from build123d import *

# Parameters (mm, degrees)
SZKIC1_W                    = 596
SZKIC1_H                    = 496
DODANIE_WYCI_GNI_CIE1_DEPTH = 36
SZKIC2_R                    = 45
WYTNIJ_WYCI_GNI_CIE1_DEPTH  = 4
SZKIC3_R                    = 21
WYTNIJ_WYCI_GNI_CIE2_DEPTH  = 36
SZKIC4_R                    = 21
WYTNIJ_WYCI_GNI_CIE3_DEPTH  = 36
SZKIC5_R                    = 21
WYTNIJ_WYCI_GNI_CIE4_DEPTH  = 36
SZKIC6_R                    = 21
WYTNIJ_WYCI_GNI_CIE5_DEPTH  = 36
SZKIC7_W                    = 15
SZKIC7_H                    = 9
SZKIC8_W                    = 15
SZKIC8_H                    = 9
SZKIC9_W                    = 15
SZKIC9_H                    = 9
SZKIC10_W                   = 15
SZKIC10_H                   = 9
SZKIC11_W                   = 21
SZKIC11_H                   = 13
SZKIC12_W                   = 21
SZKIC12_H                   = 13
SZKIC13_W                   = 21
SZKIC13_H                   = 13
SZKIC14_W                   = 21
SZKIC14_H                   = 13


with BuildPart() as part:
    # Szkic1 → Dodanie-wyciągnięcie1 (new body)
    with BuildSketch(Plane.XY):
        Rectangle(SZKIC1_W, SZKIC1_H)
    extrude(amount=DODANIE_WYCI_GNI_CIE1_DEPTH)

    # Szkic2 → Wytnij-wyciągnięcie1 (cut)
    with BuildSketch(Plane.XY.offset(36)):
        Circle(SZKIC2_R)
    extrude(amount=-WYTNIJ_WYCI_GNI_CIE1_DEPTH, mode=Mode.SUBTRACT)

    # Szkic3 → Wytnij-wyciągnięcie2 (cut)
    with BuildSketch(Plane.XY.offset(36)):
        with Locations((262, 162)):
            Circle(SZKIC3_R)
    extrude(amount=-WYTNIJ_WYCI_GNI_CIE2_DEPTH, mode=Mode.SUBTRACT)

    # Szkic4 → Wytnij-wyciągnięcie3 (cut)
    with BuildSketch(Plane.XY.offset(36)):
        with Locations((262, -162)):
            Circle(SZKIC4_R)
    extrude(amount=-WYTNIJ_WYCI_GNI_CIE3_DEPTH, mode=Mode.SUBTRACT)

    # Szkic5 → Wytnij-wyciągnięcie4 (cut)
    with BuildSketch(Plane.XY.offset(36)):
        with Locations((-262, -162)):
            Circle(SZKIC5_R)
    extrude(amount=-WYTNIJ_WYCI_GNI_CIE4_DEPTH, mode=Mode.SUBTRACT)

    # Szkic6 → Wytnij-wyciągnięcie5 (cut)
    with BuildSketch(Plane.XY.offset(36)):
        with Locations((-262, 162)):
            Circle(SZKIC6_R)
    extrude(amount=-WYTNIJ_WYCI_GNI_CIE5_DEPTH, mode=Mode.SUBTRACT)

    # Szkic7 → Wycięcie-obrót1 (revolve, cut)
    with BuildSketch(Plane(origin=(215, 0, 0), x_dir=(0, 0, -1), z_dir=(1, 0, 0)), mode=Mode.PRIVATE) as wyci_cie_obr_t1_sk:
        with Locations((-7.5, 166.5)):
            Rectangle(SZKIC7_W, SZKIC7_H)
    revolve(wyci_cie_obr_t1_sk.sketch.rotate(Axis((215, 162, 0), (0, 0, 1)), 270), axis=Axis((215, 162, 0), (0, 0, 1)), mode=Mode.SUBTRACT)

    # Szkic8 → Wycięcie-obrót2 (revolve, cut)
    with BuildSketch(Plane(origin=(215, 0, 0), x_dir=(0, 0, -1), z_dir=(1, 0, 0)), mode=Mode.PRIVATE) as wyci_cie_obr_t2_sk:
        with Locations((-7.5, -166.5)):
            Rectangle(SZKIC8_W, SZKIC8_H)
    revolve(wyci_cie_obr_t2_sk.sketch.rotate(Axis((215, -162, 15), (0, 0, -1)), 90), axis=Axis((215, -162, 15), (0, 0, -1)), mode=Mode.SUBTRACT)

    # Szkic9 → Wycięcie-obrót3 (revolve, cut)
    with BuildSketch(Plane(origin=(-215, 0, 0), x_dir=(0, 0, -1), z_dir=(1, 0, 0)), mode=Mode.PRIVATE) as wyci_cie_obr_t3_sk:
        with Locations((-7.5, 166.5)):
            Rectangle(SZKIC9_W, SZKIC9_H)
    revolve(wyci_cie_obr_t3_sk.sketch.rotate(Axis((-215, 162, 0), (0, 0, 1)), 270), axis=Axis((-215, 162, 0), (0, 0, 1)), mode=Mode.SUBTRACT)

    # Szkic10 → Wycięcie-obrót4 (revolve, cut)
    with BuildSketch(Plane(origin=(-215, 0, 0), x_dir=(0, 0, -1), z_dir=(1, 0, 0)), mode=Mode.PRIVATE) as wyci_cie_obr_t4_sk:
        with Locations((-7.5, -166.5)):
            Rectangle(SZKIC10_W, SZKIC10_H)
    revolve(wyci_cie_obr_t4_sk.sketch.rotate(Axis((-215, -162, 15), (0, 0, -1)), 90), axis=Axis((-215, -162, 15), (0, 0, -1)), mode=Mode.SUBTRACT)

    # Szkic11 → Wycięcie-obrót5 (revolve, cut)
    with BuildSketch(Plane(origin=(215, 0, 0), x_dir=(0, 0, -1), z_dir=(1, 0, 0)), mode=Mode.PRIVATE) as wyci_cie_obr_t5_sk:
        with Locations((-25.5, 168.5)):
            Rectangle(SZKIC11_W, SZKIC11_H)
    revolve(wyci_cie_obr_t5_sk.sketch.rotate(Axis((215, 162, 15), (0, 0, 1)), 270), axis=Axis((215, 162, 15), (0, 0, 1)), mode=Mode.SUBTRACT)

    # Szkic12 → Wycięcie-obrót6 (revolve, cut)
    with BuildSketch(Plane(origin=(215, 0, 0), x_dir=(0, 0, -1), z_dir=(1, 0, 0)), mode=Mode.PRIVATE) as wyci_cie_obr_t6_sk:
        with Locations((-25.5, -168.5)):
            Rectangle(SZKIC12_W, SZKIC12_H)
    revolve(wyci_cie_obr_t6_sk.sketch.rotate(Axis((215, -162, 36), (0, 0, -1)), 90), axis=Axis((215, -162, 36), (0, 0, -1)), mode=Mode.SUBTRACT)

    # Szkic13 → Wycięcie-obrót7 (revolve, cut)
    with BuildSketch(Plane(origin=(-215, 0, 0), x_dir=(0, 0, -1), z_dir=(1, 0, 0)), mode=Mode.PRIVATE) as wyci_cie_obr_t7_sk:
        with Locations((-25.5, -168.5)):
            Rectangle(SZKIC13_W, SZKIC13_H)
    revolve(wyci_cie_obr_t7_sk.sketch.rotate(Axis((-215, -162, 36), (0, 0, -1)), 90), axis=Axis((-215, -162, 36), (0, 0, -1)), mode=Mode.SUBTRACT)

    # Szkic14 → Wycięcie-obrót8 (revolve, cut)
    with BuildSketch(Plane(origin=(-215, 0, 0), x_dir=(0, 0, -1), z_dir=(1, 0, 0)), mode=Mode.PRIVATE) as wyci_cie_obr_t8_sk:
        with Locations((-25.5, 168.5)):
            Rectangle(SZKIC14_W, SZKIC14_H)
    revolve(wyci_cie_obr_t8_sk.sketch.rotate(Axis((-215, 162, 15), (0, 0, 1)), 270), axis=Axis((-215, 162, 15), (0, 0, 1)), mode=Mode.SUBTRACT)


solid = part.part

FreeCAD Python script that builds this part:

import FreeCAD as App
import Part
import Sketcher

V = App.Vector
Q = App.Units.Quantity

doc = App.newDocument("Part")
body = doc.addObject("PartDesign::Body", "Body")

# Sketch on XY plane
sketch1 = body.newObject("Sketcher::SketchObject", "Sketch")
sketch1.AttachmentSupport = (doc.getObject("XY_Plane"), [""])
sketch1.MapMode = "FlatFace"
sketch1.addGeometry([
    Part.LineSegment(V(-298, 248, 0), V(-298, -248, 0)),
    Part.LineSegment(V(-298, -248, 0), V(298, -248, 0)),
    Part.LineSegment(V(298, -248, 0), V(298, 248, 0)),
    Part.LineSegment(V(298, 248, 0), V(-298, 248, 0)),
], False)
sketch1.addConstraint([
    Sketcher.Constraint("Coincident", 0, 2, 1, 1),
    Sketcher.Constraint("Coincident", 1, 2, 2, 1),
    Sketcher.Constraint("Coincident", 2, 2, 3, 1),
    Sketcher.Constraint("Coincident", 3, 2, 0, 1),
    Sketcher.Constraint("Vertical", 0),
    Sketcher.Constraint("Horizontal", 1),
    Sketcher.Constraint("Vertical", 2),
    Sketcher.Constraint("Horizontal", 3),
    Sketcher.Constraint("Symmetric", 0, 2, 2, 2, -1, 1),
    Sketcher.Constraint("DistanceX", 1, 1, 1, 2, Q("596 mm")),
    Sketcher.Constraint("DistanceY", 0, 2, 0, 1, Q("496 mm")),
])
pad1 = body.newObject("PartDesign::Pad", "Pad")
pad1.Profile = sketch1
pad1.Length = 36

# Sketch on XY plane
sketch2 = body.newObject("Sketcher::SketchObject", "Sketch001")
sketch2.AttachmentSupport = (doc.getObject("XY_Plane"), [""])
sketch2.MapMode = "FlatFace"
sketch2.AttachmentOffset = App.Placement(V(0, 0, 36), App.Rotation())
sketch2.addGeometry(Part.Circle(V(0, 0, 0), V(0, 0, 1), 45), False)
sketch2.addConstraint([
    Sketcher.Constraint("Coincident", 0, 3, -1, 1),
    Sketcher.Constraint("Diameter", 0, Q("90 mm")),
])
pocket1 = body.newObject("PartDesign::Pocket", "Pocket")
pocket1.Profile = sketch2
pocket1.Length = 4

# Sketch on XY plane
sketch3 = body.newObject("Sketcher::SketchObject", "Sketch002")
sketch3.AttachmentSupport = (doc.getObject("XY_Plane"), [""])
sketch3.MapMode = "FlatFace"
sketch3.AttachmentOffset = App.Placement(V(0, 0, 36), App.Rotation())
sketch3.addGeometry(Part.Circle(V(262, 162, 0), V(0, 0, 1), 21), False)
sketch3.addConstraint([
    Sketcher.Constraint("Diameter", 0, Q("42 mm")),
    Sketcher.Constraint("DistanceX", -1, 1, 0, 3, Q("262 mm")),
    Sketcher.Constraint("DistanceY", -1, 1, 0, 3, Q("162 mm")),
])
pocket2 = body.newObject("PartDesign::Pocket", "Pocket001")
pocket2.Profile = sketch3
pocket2.Length = 36

# Sketch on XY plane
sketch4 = body.newObject("Sketcher::SketchObject", "Sketch003")
sketch4.AttachmentSupport = (doc.getObject("XY_Plane"), [""])
sketch4.MapMode = "FlatFace"
sketch4.AttachmentOffset = App.Placement(V(0, 0, 36), App.Rotation())
sketch4.addGeometry(Part.Circle(V(262, -162, 0), V(0, 0, 1), 21), False)
sketch4.addConstraint([
    Sketcher.Constraint("Diameter", 0, Q("42 mm")),
    Sketcher.Constraint("DistanceX", -1, 1, 0, 3, Q("262 mm")),
    Sketcher.Constraint("DistanceY", 0, 3, -1, 1, Q("162 mm")),
])
pocket3 = body.newObject("PartDesign::Pocket", "Pocket002")
pocket3.Profile = sketch4
pocket3.Length = 36

# Sketch on XY plane
sketch5 = body.newObject("Sketcher::SketchObject", "Sketch004")
sketch5.AttachmentSupport = (doc.getObject("XY_Plane"), [""])
sketch5.MapMode = "FlatFace"
sketch5.AttachmentOffset = App.Placement(V(0, 0, 36), App.Rotation())
sketch5.addGeometry(Part.Circle(V(-262, -162, 0), V(0, 0, 1), 21), False)
sketch5.addConstraint([
    Sketcher.Constraint("Diameter", 0, Q("42 mm")),
    Sketcher.Constraint("DistanceX", 0, 3, -1, 1, Q("262 mm")),
    Sketcher.Constraint("DistanceY", 0, 3, -1, 1, Q("162 mm")),
])
pocket4 = body.newObject("PartDesign::Pocket", "Pocket003")
pocket4.Profile = sketch5
pocket4.Length = 36

# Sketch on XY plane
sketch6 = body.newObject("Sketcher::SketchObject", "Sketch005")
sketch6.AttachmentSupport = (doc.getObject("XY_Plane"), [""])
sketch6.MapMode = "FlatFace"
sketch6.AttachmentOffset = App.Placement(V(0, 0, 36), App.Rotation())
sketch6.addGeometry(Part.Circle(V(-262, 162, 0), V(0, 0, 1), 21), False)
sketch6.addConstraint([
    Sketcher.Constraint("Diameter", 0, Q("42 mm")),
    Sketcher.Constraint("DistanceX", 0, 3, -1, 1, Q("262 mm")),
    Sketcher.Constraint("DistanceY", -1, 1, 0, 3, Q("162 mm")),
])
pocket5 = body.newObject("PartDesign::Pocket", "Pocket004")
pocket5.Profile = sketch6
pocket5.Length = 36

# Sketch on YZ plane
sketch7 = body.newObject("Sketcher::SketchObject", "Sketch006")
sketch7.AttachmentSupport = (doc.getObject("YZ_Plane"), [""])
sketch7.MapMode = "FlatFace"
sketch7.AttachmentOffset = App.Placement(V(0, 0, 215), App.Rotation())
sketch7.addGeometry([
    Part.LineSegment(V(171, 15, 0), V(162, 15, 0)),
    Part.LineSegment(V(162, 15, 0), V(162, 0, 0)),
    Part.LineSegment(V(162, 0, 0), V(171, 0, 0)),
    Part.LineSegment(V(171, 0, 0), V(171, 15, 0)),
], False)
sketch7.addGeometry(Part.LineSegment(V(162, 0, 0), V(162, 15, 0)), True)  # axis
sketch7.addConstraint([
    Sketcher.Constraint("Coincident", 0, 2, 1, 1),
    Sketcher.Constraint("Coincident", 1, 2, 2, 1),
    Sketcher.Constraint("Coincident", 2, 2, 3, 1),
    Sketcher.Constraint("Coincident", 3, 2, 0, 1),
    Sketcher.Constraint("Horizontal", 0),
    Sketcher.Constraint("Vertical", 1),
    Sketcher.Constraint("Horizontal", 2),
    Sketcher.Constraint("Vertical", 3),
    Sketcher.Constraint("Vertical", 4),
    Sketcher.Constraint("Coincident", 4, 1, 1, 2),
    Sketcher.Constraint("PointOnObject", 1, 2, -1),
    Sketcher.Constraint("Horizontal", 3, 2, 4, 2),
    Sketcher.Constraint("DistanceX", 0, 2, 0, 1, Q("9 mm")),
    Sketcher.Constraint("DistanceY", 1, 2, 1, 1, Q("15 mm")),
    Sketcher.Constraint("DistanceX", -1, 1, 0, 2, Q("162 mm")),
])
groove = body.newObject("PartDesign::Groove", "Groove")
groove.Profile = sketch7
groove.ReferenceAxis = (sketch7, ["Axis0"])
groove.Angle = 360

# Sketch on YZ plane
sketch8 = body.newObject("Sketcher::SketchObject", "Sketch007")
sketch8.AttachmentSupport = (doc.getObject("YZ_Plane"), [""])
sketch8.MapMode = "FlatFace"
sketch8.AttachmentOffset = App.Placement(V(0, 0, 215), App.Rotation())
sketch8.addGeometry([
    Part.LineSegment(V(-162, 15, 0), V(-171, 15, 0)),
    Part.LineSegment(V(-171, 15, 0), V(-171, 0, 0)),
    Part.LineSegment(V(-171, 0, 0), V(-162, 0, 0)),
    Part.LineSegment(V(-162, 0, 0), V(-162, 15, 0)),
], False)
sketch8.addGeometry(Part.LineSegment(V(-162, 15, 0), V(-162, 0, 0)), True)  # axis
sketch8.addConstraint([
    Sketcher.Constraint("Coincident", 0, 2, 1, 1),
    Sketcher.Constraint("Coincident", 1, 2, 2, 1),
    Sketcher.Constraint("Coincident", 2, 2, 3, 1),
    Sketcher.Constraint("Coincident", 3, 2, 0, 1),
    Sketcher.Constraint("Horizontal", 0),
    Sketcher.Constraint("Vertical", 1),
    Sketcher.Constraint("Horizontal", 2),
    Sketcher.Constraint("Vertical", 3),
    Sketcher.Constraint("Vertical", 4),
    Sketcher.Constraint("Coincident", 4, 1, 3, 2),
    Sketcher.Constraint("PointOnObject", 1, 2, -1),
    Sketcher.Constraint("PointOnObject", 4, 2, -1),
    Sketcher.Constraint("DistanceX", 0, 2, 0, 1, Q("9 mm")),
    Sketcher.Constraint("DistanceY", 1, 2, 1, 1, Q("15 mm")),
    Sketcher.Constraint("DistanceX", 0, 2, -1, 1, Q("171 mm")),
])
groove2 = body.newObject("PartDesign::Groove", "Groove001")
groove2.Profile = sketch8
groove2.ReferenceAxis = (sketch8, ["Axis0"])
groove2.Angle = 360

# Sketch on YZ plane
sketch9 = body.newObject("Sketcher::SketchObject", "Sketch008")
sketch9.AttachmentSupport = (doc.getObject("YZ_Plane"), [""])
sketch9.MapMode = "FlatFace"
sketch9.AttachmentOffset = App.Placement(V(0, 0, -215), App.Rotation())
sketch9.addGeometry([
    Part.LineSegment(V(171, 15, 0), V(162, 15, 0)),
    Part.LineSegment(V(162, 15, 0), V(162, 0, 0)),
    Part.LineSegment(V(162, 0, 0), V(171, 0, 0)),
    Part.LineSegment(V(171, 0, 0), V(171, 15, 0)),
], False)
sketch9.addGeometry(Part.LineSegment(V(162, 0, 0), V(162, 15, 0)), True)  # axis
sketch9.addConstraint([
    Sketcher.Constraint("Coincident", 0, 2, 1, 1),
    Sketcher.Constraint("Coincident", 1, 2, 2, 1),
    Sketcher.Constraint("Coincident", 2, 2, 3, 1),
    Sketcher.Constraint("Coincident", 3, 2, 0, 1),
    Sketcher.Constraint("Horizontal", 0),
    Sketcher.Constraint("Vertical", 1),
    Sketcher.Constraint("Horizontal", 2),
    Sketcher.Constraint("Vertical", 3),
    Sketcher.Constraint("Vertical", 4),
    Sketcher.Constraint("Coincident", 4, 1, 1, 2),
    Sketcher.Constraint("PointOnObject", 1, 2, -1),
    Sketcher.Constraint("Horizontal", 3, 2, 4, 2),
    Sketcher.Constraint("DistanceX", 0, 2, 0, 1, Q("9 mm")),
    Sketcher.Constraint("DistanceY", 1, 2, 1, 1, Q("15 mm")),
    Sketcher.Constraint("DistanceX", -1, 1, 0, 2, Q("162 mm")),
])
groove3 = body.newObject("PartDesign::Groove", "Groove002")
groove3.Profile = sketch9
groove3.ReferenceAxis = (sketch9, ["Axis0"])
groove3.Angle = 360

# Sketch on YZ plane
sketch10 = body.newObject("Sketcher::SketchObject", "Sketch009")
sketch10.AttachmentSupport = (doc.getObject("YZ_Plane"), [""])
sketch10.MapMode = "FlatFace"
sketch10.AttachmentOffset = App.Placement(V(0, 0, -215), App.Rotation())
sketch10.addGeometry([
    Part.LineSegment(V(-162, 15, 0), V(-171, 15, 0)),
    Part.LineSegment(V(-171, 15, 0), V(-171, 0, 0)),
    Part.LineSegment(V(-171, 0, 0), V(-162, 0, 0)),
    Part.LineSegment(V(-162, 0, 0), V(-162, 15, 0)),
], False)
sketch10.addGeometry(Part.LineSegment(V(-162, 15, 0), V(-162, 0, 0)), True)  # axis
sketch10.addConstraint([
    Sketcher.Constraint("Coincident", 0, 2, 1, 1),
    Sketcher.Constraint("Coincident", 1, 2, 2, 1),
    Sketcher.Constraint("Coincident", 2, 2, 3, 1),
    Sketcher.Constraint("Coincident", 3, 2, 0, 1),
    Sketcher.Constraint("Horizontal", 0),
    Sketcher.Constraint("Vertical", 1),
    Sketcher.Constraint("Horizontal", 2),
    Sketcher.Constraint("Vertical", 3),
    Sketcher.Constraint("Vertical", 4),
    Sketcher.Constraint("Coincident", 4, 1, 3, 2),
    Sketcher.Constraint("PointOnObject", 1, 2, -1),
    Sketcher.Constraint("PointOnObject", 4, 2, -1),
    Sketcher.Constraint("DistanceX", 0, 2, 0, 1, Q("9 mm")),
    Sketcher.Constraint("DistanceY", 1, 2, 1, 1, Q("15 mm")),
    Sketcher.Constraint("DistanceX", 0, 2, -1, 1, Q("171 mm")),
])
groove4 = body.newObject("PartDesign::Groove", "Groove003")
groove4.Profile = sketch10
groove4.ReferenceAxis = (sketch10, ["Axis0"])
groove4.Angle = 360

# Sketch on YZ plane
sketch11 = body.newObject("Sketcher::SketchObject", "Sketch010")
sketch11.AttachmentSupport = (doc.getObject("YZ_Plane"), [""])
sketch11.MapMode = "FlatFace"
sketch11.AttachmentOffset = App.Placement(V(0, 0, 215), App.Rotation())
sketch11.addGeometry([
    Part.LineSegment(V(175, 36, 0), V(162, 36, 0)),
    Part.LineSegment(V(162, 36, 0), V(162, 15, 0)),
    Part.LineSegment(V(162, 15, 0), V(175, 15, 0)),
    Part.LineSegment(V(175, 15, 0), V(175, 36, 0)),
], False)
sketch11.addGeometry(Part.LineSegment(V(162, 15, 0), V(162, 36, 0)), True)  # axis
sketch11.addConstraint([
    Sketcher.Constraint("Coincident", 0, 2, 1, 1),
    Sketcher.Constraint("Coincident", 1, 2, 2, 1),
    Sketcher.Constraint("Coincident", 2, 2, 3, 1),
    Sketcher.Constraint("Coincident", 3, 2, 0, 1),
    Sketcher.Constraint("Horizontal", 0),
    Sketcher.Constraint("Vertical", 1),
    Sketcher.Constraint("Horizontal", 2),
    Sketcher.Constraint("Vertical", 3),
    Sketcher.Constraint("Vertical", 4),
    Sketcher.Constraint("Coincident", 4, 1, 1, 2),
    Sketcher.Constraint("Horizontal", 3, 2, 4, 2),
    Sketcher.Constraint("DistanceX", 0, 2, 0, 1, Q("13 mm")),
    Sketcher.Constraint("DistanceY", 1, 2, 1, 1, Q("21 mm")),
    Sketcher.Constraint("DistanceX", -1, 1, 0, 2, Q("162 mm")),
    Sketcher.Constraint("DistanceY", -1, 1, 0, 2, Q("36 mm")),
])
groove5 = body.newObject("PartDesign::Groove", "Groove004")
groove5.Profile = sketch11
groove5.ReferenceAxis = (sketch11, ["Axis0"])
groove5.Angle = 360

# Sketch on YZ plane
sketch12 = body.newObject("Sketcher::SketchObject", "Sketch011")
sketch12.AttachmentSupport = (doc.getObject("YZ_Plane"), [""])
sketch12.MapMode = "FlatFace"
sketch12.AttachmentOffset = App.Placement(V(0, 0, 215), App.Rotation())
sketch12.addGeometry([
    Part.LineSegment(V(-162, 36, 0), V(-175, 36, 0)),
    Part.LineSegment(V(-175, 36, 0), V(-175, 15, 0)),
    Part.LineSegment(V(-175, 15, 0), V(-162, 15, 0)),
    Part.LineSegment(V(-162, 15, 0), V(-162, 36, 0)),
], False)
sketch12.addGeometry(Part.LineSegment(V(-162, 36, 0), V(-162, 15, 0)), True)  # axis
sketch12.addConstraint([
    Sketcher.Constraint("Coincident", 0, 2, 1, 1),
    Sketcher.Constraint("Coincident", 1, 2, 2, 1),
    Sketcher.Constraint("Coincident", 2, 2, 3, 1),
    Sketcher.Constraint("Coincident", 3, 2, 0, 1),
    Sketcher.Constraint("Horizontal", 0),
    Sketcher.Constraint("Vertical", 1),
    Sketcher.Constraint("Horizontal", 2),
    Sketcher.Constraint("Vertical", 3),
    Sketcher.Constraint("Vertical", 4),
    Sketcher.Constraint("Coincident", 4, 1, 3, 2),
    Sketcher.Constraint("Horizontal", 1, 2, 4, 2),
    Sketcher.Constraint("DistanceX", 0, 2, 0, 1, Q("13 mm")),
    Sketcher.Constraint("DistanceY", 1, 2, 1, 1, Q("21 mm")),
    Sketcher.Constraint("DistanceX", 0, 2, -1, 1, Q("175 mm")),
    Sketcher.Constraint("DistanceY", -1, 1, 0, 2, Q("36 mm")),
])
groove6 = body.newObject("PartDesign::Groove", "Groove005")
groove6.Profile = sketch12
groove6.ReferenceAxis = (sketch12, ["Axis0"])
groove6.Angle = 360

# Sketch on YZ plane
sketch13 = body.newObject("Sketcher::SketchObject", "Sketch012")
sketch13.AttachmentSupport = (doc.getObject("YZ_Plane"), [""])
sketch13.MapMode = "FlatFace"
sketch13.AttachmentOffset = App.Placement(V(0, 0, -215), App.Rotation())
sketch13.addGeometry([
    Part.LineSegment(V(-162, 36, 0), V(-175, 36, 0)),
    Part.LineSegment(V(-175, 36, 0), V(-175, 15, 0)),
    Part.LineSegment(V(-175, 15, 0), V(-162, 15, 0)),
    Part.LineSegment(V(-162, 15, 0), V(-162, 36, 0)),
], False)
sketch13.addGeometry(Part.LineSegment(V(-162, 36, 0), V(-162, 15, 0)), True)  # axis
sketch13.addConstraint([
    Sketcher.Constraint("Coincident", 0, 2, 1, 1),
    Sketcher.Constraint("Coincident", 1, 2, 2, 1),
    Sketcher.Constraint("Coincident", 2, 2, 3, 1),
    Sketcher.Constraint("Coincident", 3, 2, 0, 1),
    Sketcher.Constraint("Horizontal", 0),
    Sketcher.Constraint("Vertical", 1),
    Sketcher.Constraint("Horizontal", 2),
    Sketcher.Constraint("Vertical", 3),
    Sketcher.Constraint("Vertical", 4),
    Sketcher.Constraint("Coincident", 4, 1, 3, 2),
    Sketcher.Constraint("Horizontal", 1, 2, 4, 2),
    Sketcher.Constraint("DistanceX", 0, 2, 0, 1, Q("13 mm")),
    Sketcher.Constraint("DistanceY", 1, 2, 1, 1, Q("21 mm")),
    Sketcher.Constraint("DistanceX", 0, 2, -1, 1, Q("175 mm")),
    Sketcher.Constraint("DistanceY", -1, 1, 0, 2, Q("36 mm")),
])
groove7 = body.newObject("PartDesign::Groove", "Groove006")
groove7.Profile = sketch13
groove7.ReferenceAxis = (sketch13, ["Axis0"])
groove7.Angle = 360

# Sketch on YZ plane
sketch14 = body.newObject("Sketcher::SketchObject", "Sketch013")
sketch14.AttachmentSupport = (doc.getObject("YZ_Plane"), [""])
sketch14.MapMode = "FlatFace"
sketch14.AttachmentOffset = App.Placement(V(0, 0, -215), App.Rotation())
sketch14.addGeometry([
    Part.LineSegment(V(175, 36, 0), V(162, 36, 0)),
    Part.LineSegment(V(162, 36, 0), V(162, 15, 0)),
    Part.LineSegment(V(162, 15, 0), V(175, 15, 0)),
    Part.LineSegment(V(175, 15, 0), V(175, 36, 0)),
], False)
sketch14.addGeometry(Part.LineSegment(V(162, 15, 0), V(162, 36, 0)), True)  # axis
sketch14.addConstraint([
    Sketcher.Constraint("Coincident", 0, 2, 1, 1),
    Sketcher.Constraint("Coincident", 1, 2, 2, 1),
    Sketcher.Constraint("Coincident", 2, 2, 3, 1),
    Sketcher.Constraint("Coincident", 3, 2, 0, 1),
    Sketcher.Constraint("Horizontal", 0),
    Sketcher.Constraint("Vertical", 1),
    Sketcher.Constraint("Horizontal", 2),
    Sketcher.Constraint("Vertical", 3),
    Sketcher.Constraint("Vertical", 4),
    Sketcher.Constraint("Coincident", 4, 1, 1, 2),
    Sketcher.Constraint("Horizontal", 3, 2, 4, 2),
    Sketcher.Constraint("DistanceX", 0, 2, 0, 1, Q("13 mm")),
    Sketcher.Constraint("DistanceY", 1, 2, 1, 1, Q("21 mm")),
    Sketcher.Constraint("DistanceX", -1, 1, 0, 2, Q("162 mm")),
    Sketcher.Constraint("DistanceY", -1, 1, 0, 2, Q("36 mm")),
])
groove8 = body.newObject("PartDesign::Groove", "Groove007")
groove8.Profile = sketch14
groove8.ReferenceAxis = (sketch14, ["Axis0"])
groove8.Angle = 360

doc.recompute()
